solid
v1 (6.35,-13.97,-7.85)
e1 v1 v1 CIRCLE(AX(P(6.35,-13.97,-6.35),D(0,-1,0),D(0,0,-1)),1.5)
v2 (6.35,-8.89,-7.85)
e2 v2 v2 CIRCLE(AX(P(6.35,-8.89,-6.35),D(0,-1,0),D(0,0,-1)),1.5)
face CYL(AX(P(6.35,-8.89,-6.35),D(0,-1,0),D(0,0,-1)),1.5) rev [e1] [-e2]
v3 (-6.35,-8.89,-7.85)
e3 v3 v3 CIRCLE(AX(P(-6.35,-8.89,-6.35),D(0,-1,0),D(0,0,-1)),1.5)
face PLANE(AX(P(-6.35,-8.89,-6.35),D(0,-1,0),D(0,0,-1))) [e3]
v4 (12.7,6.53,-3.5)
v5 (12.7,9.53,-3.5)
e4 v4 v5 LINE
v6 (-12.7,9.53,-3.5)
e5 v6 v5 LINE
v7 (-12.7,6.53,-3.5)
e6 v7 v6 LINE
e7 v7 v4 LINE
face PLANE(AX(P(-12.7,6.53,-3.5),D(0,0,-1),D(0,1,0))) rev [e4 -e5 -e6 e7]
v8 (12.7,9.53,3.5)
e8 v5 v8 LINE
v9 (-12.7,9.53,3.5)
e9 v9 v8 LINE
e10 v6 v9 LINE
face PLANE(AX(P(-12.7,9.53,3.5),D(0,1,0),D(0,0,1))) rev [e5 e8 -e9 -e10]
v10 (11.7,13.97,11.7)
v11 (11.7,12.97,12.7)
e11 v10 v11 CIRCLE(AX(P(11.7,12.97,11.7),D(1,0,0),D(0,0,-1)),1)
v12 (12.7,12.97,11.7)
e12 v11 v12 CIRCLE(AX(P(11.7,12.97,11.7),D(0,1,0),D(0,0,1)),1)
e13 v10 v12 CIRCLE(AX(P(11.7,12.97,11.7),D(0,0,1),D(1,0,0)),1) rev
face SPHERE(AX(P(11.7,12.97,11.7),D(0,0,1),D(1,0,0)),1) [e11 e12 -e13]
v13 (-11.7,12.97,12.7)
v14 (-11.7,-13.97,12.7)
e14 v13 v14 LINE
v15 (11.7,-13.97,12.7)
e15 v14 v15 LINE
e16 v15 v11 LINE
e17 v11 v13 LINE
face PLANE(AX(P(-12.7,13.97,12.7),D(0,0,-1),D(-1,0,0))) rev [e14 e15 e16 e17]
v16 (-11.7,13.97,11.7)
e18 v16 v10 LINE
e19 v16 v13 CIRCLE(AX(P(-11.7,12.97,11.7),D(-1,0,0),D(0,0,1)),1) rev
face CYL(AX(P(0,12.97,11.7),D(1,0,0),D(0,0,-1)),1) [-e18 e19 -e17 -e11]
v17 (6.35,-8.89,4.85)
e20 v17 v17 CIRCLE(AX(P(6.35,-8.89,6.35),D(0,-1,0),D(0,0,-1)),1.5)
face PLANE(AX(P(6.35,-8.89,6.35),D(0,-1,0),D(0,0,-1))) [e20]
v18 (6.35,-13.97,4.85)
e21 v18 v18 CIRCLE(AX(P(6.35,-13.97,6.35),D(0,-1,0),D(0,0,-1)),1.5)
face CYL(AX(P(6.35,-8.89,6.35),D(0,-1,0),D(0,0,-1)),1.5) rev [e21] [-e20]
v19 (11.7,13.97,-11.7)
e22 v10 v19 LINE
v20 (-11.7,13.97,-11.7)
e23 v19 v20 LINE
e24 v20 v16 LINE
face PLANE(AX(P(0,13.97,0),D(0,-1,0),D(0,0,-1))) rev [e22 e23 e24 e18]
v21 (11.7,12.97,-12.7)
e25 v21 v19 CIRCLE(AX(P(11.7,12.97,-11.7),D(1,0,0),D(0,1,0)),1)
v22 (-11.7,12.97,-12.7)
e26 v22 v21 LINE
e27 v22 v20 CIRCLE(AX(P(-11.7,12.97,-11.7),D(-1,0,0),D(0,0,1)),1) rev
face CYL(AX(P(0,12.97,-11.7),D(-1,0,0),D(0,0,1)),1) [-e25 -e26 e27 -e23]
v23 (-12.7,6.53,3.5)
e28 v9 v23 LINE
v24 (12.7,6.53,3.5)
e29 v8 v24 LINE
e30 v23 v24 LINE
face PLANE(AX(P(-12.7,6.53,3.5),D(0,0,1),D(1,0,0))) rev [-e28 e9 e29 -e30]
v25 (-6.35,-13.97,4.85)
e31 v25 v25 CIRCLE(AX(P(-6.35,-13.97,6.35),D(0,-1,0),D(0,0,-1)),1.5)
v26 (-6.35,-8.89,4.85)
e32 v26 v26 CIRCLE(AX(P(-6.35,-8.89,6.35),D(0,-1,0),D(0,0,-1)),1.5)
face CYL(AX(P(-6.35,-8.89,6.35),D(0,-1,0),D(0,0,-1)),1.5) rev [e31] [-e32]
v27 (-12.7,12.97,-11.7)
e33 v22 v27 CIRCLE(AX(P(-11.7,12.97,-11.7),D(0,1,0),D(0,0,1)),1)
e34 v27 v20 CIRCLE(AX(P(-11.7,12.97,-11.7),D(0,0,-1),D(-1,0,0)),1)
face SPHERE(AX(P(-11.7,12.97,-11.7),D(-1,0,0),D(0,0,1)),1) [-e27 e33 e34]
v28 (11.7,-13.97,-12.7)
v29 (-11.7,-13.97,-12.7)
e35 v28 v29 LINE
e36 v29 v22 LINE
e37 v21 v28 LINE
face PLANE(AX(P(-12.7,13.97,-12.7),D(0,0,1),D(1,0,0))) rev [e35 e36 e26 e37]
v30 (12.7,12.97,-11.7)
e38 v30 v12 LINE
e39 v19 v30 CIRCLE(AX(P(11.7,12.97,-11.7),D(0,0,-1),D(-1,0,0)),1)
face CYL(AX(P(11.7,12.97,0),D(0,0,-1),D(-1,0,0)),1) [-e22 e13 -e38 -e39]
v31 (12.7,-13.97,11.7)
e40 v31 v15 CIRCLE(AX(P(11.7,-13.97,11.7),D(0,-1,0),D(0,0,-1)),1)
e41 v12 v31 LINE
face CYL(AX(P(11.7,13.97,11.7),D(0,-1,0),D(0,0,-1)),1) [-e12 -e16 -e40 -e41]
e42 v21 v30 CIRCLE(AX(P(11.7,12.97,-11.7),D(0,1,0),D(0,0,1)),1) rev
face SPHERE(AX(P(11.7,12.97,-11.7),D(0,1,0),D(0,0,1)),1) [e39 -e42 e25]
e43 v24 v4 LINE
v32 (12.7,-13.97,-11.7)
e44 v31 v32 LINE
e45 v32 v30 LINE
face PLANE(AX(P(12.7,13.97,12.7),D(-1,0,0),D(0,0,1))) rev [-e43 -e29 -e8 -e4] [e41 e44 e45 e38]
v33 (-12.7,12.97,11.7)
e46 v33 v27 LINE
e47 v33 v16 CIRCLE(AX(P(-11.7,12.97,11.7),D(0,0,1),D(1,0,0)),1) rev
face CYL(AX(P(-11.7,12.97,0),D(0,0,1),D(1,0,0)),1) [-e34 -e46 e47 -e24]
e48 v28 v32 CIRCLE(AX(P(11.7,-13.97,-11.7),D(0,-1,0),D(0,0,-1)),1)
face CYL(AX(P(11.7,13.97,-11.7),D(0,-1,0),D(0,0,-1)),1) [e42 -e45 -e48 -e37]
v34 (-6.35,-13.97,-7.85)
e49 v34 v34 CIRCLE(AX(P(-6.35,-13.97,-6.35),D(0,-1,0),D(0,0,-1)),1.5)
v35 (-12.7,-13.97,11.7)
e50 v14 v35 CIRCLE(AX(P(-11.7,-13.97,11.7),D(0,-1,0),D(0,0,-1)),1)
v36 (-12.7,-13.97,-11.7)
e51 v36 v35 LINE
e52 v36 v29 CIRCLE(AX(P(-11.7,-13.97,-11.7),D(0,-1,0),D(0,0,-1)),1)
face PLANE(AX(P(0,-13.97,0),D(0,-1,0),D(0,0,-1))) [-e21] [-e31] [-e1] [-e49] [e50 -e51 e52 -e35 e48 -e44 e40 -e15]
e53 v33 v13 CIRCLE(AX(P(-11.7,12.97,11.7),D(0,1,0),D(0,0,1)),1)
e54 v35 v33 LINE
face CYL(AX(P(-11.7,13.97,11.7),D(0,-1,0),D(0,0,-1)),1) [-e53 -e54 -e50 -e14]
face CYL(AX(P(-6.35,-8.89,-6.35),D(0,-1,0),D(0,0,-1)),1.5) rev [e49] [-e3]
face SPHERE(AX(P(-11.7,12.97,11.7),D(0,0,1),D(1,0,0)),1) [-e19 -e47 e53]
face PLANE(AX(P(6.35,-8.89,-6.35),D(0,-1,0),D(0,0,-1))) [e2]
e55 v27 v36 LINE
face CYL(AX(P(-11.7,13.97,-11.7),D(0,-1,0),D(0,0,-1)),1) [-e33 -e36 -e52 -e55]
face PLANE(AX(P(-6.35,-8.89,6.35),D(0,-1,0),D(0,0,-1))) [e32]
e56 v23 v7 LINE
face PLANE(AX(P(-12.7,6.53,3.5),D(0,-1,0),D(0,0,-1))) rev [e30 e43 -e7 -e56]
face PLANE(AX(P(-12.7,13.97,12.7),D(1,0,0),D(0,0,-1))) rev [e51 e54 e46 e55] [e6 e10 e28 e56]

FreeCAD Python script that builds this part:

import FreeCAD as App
import Part
import Sketcher
from FreeCAD import Vector


def edges_at(feature, points):
    """Names of the edges that pass closest to the given points."""
    edges = feature.Shape.Edges
    near = lambda p: min(range(len(edges)), key=lambda i: edges[i].distToShape(Part.Vertex(*p))[0])
    return sorted({f"Edge{near(p) + 1}" for p in points})


def add_polygon(sketch, points):
    """Adds a closed chain of lines whose ends are joined by coincident constraints."""
    first, n = sketch.GeometryCount, len(points)
    for a, b in zip(points, points[1:] + points[:1]):
        sketch.addGeometry(Part.LineSegment(App.Vector(*a, 0), App.Vector(*b, 0)), False)
    for i in range(n):
        sketch.addConstraint(Sketcher.Constraint("Coincident", first + i, 2, first + (i + 1) % n, 1))

doc = App.newDocument("Part")
body = doc.addObject("PartDesign::Body", "Body")

sketch1 = body.newObject("Sketcher::SketchObject", "Sketch")
sketch1.AttachmentSupport = (doc.getObject("XZ_Plane"), [""])
sketch1.MapMode = "FlatFace"
add_polygon(sketch1, [(-13, -13), (-13, 13), (13, 13), (13, -13)])
sketch1.addConstraint([
    Sketcher.Constraint("Vertical", 0),
    Sketcher.Constraint("Horizontal", 1),
    Sketcher.Constraint("Vertical", 2),
    Sketcher.Constraint("Horizontal", 3),
    Sketcher.Constraint("Symmetric", 0, 2, 2, 2, -1, 1),
    Sketcher.Constraint("Equal", 3, 0),
    Sketcher.Constraint("DistanceX", 1, 1, 1, 2, 25.4),
])
pad1 = body.newObject("PartDesign::Pad", "Pad")
pad1.Profile = sketch1
pad1.Length = 27.94
pad1.Midplane = True

sketch2 = body.newObject("Sketcher::SketchObject", "Sketch001")
sketch2.AttachmentSupport = (doc.getObject("XZ_Plane"), [""])
sketch2.MapMode = "FlatFace"
sketch2.AttachmentOffset = App.Placement(Vector(0, 0, 13.97), App.Rotation())
sketch2.addGeometry([
    Part.Circle(Vector(-6.3, 6.3, 0), Vector(0, 0, 1), 1.5),
    Part.Circle(Vector(6.3, 6.3, 0), Vector(0, 0, 1), 1.5),
    Part.Circle(Vector(6.3, -6.3, 0), Vector(0, 0, 1), 1.5),
    Part.Circle(Vector(-6.3, -6.3, 0), Vector(0, 0, 1), 1.5),
], False)
sketch2.addConstraint([
    Sketcher.Constraint("Equal", 0, 1),
    Sketcher.Constraint("Equal", 1, 2),
    Sketcher.Constraint("Equal", 2, 3),
    Sketcher.Constraint("Symmetric", 0, 3, 2, 3, -1, 1),
    Sketcher.Constraint("Symmetric", 1, 3, 3, 3, -1, 1),
    Sketcher.Constraint("Symmetric", 0, 3, 1, 3, -2),
    Sketcher.Constraint("Diameter", 0, 3.0),
    Sketcher.Constraint("DistanceX", 0, 3, 1, 3, 12.7),
    Sketcher.Constraint("DistanceY", 2, 3, 1, 3, 12.7),
])
pocket1 = body.newObject("PartDesign::Pocket", "Pocket")
pocket1.Profile = sketch2
pocket1.Length = 5.08

sketch3 = body.newObject("Sketcher::SketchObject", "Sketch002")
sketch3.AttachmentSupport = (doc.getObject("YZ_Plane"), [""])
sketch3.MapMode = "FlatFace"
sketch3.AttachmentOffset = App.Placement(Vector(0, 0, 12.7), App.Rotation())
add_polygon(sketch3, [(9.5, 3.5), (6.5, 3.5), (6.5, -3.5), (9.5, -3.5)])
sketch3.addConstraint([
    Sketcher.Constraint("Horizontal", 0),
    Sketcher.Constraint("Vertical", 1),
    Sketcher.Constraint("Horizontal", 2),
    Sketcher.Constraint("Vertical", 3),
    Sketcher.Constraint("DistanceX", 0, 2, 0, 1, 3.0),
    Sketcher.Constraint("DistanceY", 1, 2, 1, 1, 7.0),
    Sketcher.Constraint("DistanceY", -1, 1, 0, 2, 3.5),
    Sketcher.Constraint("DistanceX", -1, 1, 0, 2, 6.53),
])
pocket2 = body.newObject("PartDesign::Pocket", "Pocket001")
pocket2.Profile = sketch3
pocket2.Type = "ThroughAll"
doc.recompute()

fillet = body.newObject("PartDesign::Fillet", "Fillet")
fillet.Base = (pocket2, edges_at(pocket2, [
    (-12.7, 13.97, 0),
    (0, 13.97, 12.7),
    (12.7, 13.97, 0),
    (12.7, 0, 12.7),
    (-12.7, 0, 12.7),
    (-12.7, 0, -12.7),
    (12.7, 0, -12.7),
    (0, 13.97, -12.7),
]))
fillet.Radius = 1

doc.recompute()
